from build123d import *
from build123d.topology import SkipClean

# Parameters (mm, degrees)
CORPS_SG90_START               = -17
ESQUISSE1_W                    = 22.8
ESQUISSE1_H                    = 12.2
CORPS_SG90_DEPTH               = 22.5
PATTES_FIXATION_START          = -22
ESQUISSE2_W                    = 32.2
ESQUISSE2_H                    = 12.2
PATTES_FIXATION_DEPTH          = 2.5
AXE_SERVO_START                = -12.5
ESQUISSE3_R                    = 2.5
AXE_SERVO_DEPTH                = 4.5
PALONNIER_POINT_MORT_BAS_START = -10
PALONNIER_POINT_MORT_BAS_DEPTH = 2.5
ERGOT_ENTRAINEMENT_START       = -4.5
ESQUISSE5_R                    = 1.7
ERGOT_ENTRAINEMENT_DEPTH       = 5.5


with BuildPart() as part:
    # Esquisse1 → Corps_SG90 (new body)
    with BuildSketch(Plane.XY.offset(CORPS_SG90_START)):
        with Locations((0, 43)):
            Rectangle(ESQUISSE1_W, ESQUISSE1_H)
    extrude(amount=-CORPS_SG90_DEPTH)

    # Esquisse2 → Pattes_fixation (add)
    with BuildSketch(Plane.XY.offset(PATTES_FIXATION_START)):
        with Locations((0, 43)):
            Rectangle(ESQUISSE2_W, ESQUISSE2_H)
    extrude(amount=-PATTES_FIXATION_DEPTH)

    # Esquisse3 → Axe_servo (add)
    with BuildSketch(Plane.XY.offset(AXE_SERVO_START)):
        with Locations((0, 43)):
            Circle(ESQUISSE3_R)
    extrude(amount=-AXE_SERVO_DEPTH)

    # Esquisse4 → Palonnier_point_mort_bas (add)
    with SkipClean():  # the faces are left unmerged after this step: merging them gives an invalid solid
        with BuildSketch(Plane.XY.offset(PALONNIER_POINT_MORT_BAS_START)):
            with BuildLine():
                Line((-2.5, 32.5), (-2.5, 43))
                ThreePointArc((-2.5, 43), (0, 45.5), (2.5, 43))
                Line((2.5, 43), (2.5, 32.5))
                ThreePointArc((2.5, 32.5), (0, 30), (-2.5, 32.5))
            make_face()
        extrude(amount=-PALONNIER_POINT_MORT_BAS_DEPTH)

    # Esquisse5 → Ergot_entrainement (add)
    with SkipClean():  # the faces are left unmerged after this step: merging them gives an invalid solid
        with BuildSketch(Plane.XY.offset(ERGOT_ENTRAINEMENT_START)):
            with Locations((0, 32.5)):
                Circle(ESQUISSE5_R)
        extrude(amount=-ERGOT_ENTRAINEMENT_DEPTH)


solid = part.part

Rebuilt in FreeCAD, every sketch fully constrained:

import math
import FreeCAD as App
import Part
import Sketcher

V = App.Vector

doc = App.newDocument("Part")
body = doc.addObject("PartDesign::Body", "Body")

sketch1 = body.newObject("Sketcher::SketchObject", "Sketch")
sketch1.AttachmentSupport = (doc.getObject("XY_Plane"), [""])
sketch1.MapMode = "FlatFace"
sketch1.AttachmentOffset = App.Placement(V(0, 0, -17), App.Rotation())
sketch1.addGeometry([
    Part.LineSegment(V(-11, 49, 0), V(-11, 37, 0)),
    Part.LineSegment(V(-11, 37, 0), V(11, 37, 0)),
    Part.LineSegment(V(11, 37, 0), V(11, 49, 0)),
    Part.LineSegment(V(11, 49, 0), V(-11, 49, 0)),
], False)
sketch1.addConstraint([
    Sketcher.Constraint("Coincident", 0, 2, 1, 1),
    Sketcher.Constraint("Coincident", 1, 2, 2, 1),
    Sketcher.Constraint("Coincident", 2, 2, 3, 1),
    Sketcher.Constraint("Coincident", 3, 2, 0, 1),
    Sketcher.Constraint("Vertical", 0),
    Sketcher.Constraint("Horizontal", 1),
    Sketcher.Constraint("Vertical", 2),
    Sketcher.Constraint("Horizontal", 3),
    Sketcher.Constraint("DistanceX", 1, 1, 1, 2, 22.8),
    Sketcher.Constraint("DistanceY", 0, 2, 0, 1, 12.2),
    Sketcher.Constraint("DistanceX", 0, 2, -1, 1, 11.4),
    Sketcher.Constraint("DistanceY", -1, 1, 0, 2, 36.9),
])
pad1 = body.newObject("PartDesign::Pad", "Pad")
pad1.Profile = sketch1
pad1.Length = 22.5
pad1.Reversed = True

sketch2 = body.newObject("Sketcher::SketchObject", "Sketch001")
sketch2.AttachmentSupport = (doc.getObject("XY_Plane"), [""])
sketch2.MapMode = "FlatFace"
sketch2.AttachmentOffset = App.Placement(V(0, 0, -22), App.Rotation())
sketch2.addGeometry([
    Part.LineSegment(V(-16, 49, 0), V(-16, 37, 0)),
    Part.LineSegment(V(-16, 37, 0), V(16, 37, 0)),
    Part.LineSegment(V(16, 37, 0), V(16, 49, 0)),
    Part.LineSegment(V(16, 49, 0), V(-16, 49, 0)),
], False)
sketch2.addConstraint([
    Sketcher.Constraint("Coincident", 0, 2, 1, 1),
    Sketcher.Constraint("Coincident", 1, 2, 2, 1),
    Sketcher.Constraint("Coincident", 2, 2, 3, 1),
    Sketcher.Constraint("Coincident", 3, 2, 0, 1),
    Sketcher.Constraint("Vertical", 0),
    Sketcher.Constraint("Horizontal", 1),
    Sketcher.Constraint("Vertical", 2),
    Sketcher.Constraint("Horizontal", 3),
    Sketcher.Constraint("DistanceX", 1, 1, 1, 2, 32.2),
    Sketcher.Constraint("DistanceY", 0, 2, 0, 1, 12.2),
    Sketcher.Constraint("DistanceX", 0, 2, -1, 1, 16.1),
    Sketcher.Constraint("DistanceY", -1, 1, 0, 2, 36.9),
])
pad2 = body.newObject("PartDesign::Pad", "Pad001")
pad2.Profile = sketch2
pad2.Length = 2.5
pad2.Reversed = True

sketch3 = body.newObject("Sketcher::SketchObject", "Sketch002")
sketch3.AttachmentSupport = (doc.getObject("XY_Plane"), [""])
sketch3.MapMode = "FlatFace"
sketch3.AttachmentOffset = App.Placement(V(0, 0, -12.5), App.Rotation())
sketch3.addGeometry(Part.Circle(V(0, 43, 0), V(0, 0, 1), 2.5), False)
sketch3.addConstraint([
    Sketcher.Constraint("PointOnObject", 0, 3, -2),
    Sketcher.Constraint("Diameter", 0, 5.0),
    Sketcher.Constraint("DistanceY", -1, 1, 0, 3, 43.0),
])
pad3 = body.newObject("PartDesign::Pad", "Pad002")
pad3.Profile = sketch3
pad3.Length = 4.5
pad3.Reversed = True

sketch4 = body.newObject("Sketcher::SketchObject", "Sketch003")
sketch4.AttachmentSupport = (doc.getObject("XY_Plane"), [""])
sketch4.MapMode = "FlatFace"
sketch4.AttachmentOffset = App.Placement(V(0, 0, -10), App.Rotation())
sketch4.addGeometry([
    Part.LineSegment(V(-2.5, 43, 0), V(-2.5, 32.5, 0)),
    Part.ArcOfCircle(Part.Circle(V(0, 32.5, 0), V(0, 0, 1), 2.5), math.radians(180), math.radians(360)),
    Part.LineSegment(V(2.5, 32.5, 0), V(2.5, 43, 0)),
    Part.ArcOfCircle(Part.Circle(V(0, 43, 0), V(0, 0, 1), 2.5), math.radians(0), math.radians(180)),
], False)
sketch4.addConstraint([
    Sketcher.Constraint("Tangent", 0, 2, 1, 1),
    Sketcher.Constraint("Tangent", 1, 2, 2, 1),
    Sketcher.Constraint("Tangent", 2, 2, 3, 1),
    Sketcher.Constraint("Tangent", 3, 2, 0, 1),
    Sketcher.Constraint("Vertical", 0),
    Sketcher.Constraint("Vertical", 2),
    Sketcher.Constraint("PointOnObject", 1, 3, -2),
    Sketcher.Constraint("Radius", 1, 2.5),
    Sketcher.Constraint("DistanceY", 0, 2, 0, 1, 10.5),
    Sketcher.Constraint("DistanceY", -1, 1, 3, 3, 43.0),
])
pad4 = body.newObject("PartDesign::Pad", "Pad003")
pad4.Profile = sketch4
pad4.Length = 2.5
pad4.Reversed = True

sketch5 = body.newObject("Sketcher::SketchObject", "Sketch004")
sketch5.AttachmentSupport = (doc.getObject("XY_Plane"), [""])
sketch5.MapMode = "FlatFace"
sketch5.AttachmentOffset = App.Placement(V(0, 0, -4.5), App.Rotation())
sketch5.addGeometry(Part.Circle(V(0, 32.5, 0), V(0, 0, 1), 1.7), False)
sketch5.addConstraint([
    Sketcher.Constraint("PointOnObject", 0, 3, -2),
    Sketcher.Constraint("Diameter", 0, 3.4),
    Sketcher.Constraint("DistanceY", -1, 1, 0, 3, 32.5),
])
pad5 = body.newObject("PartDesign::Pad", "Pad004")
pad5.Profile = sketch5
pad5.Length = 5.5
pad5.Reversed = True

doc.recompute()
